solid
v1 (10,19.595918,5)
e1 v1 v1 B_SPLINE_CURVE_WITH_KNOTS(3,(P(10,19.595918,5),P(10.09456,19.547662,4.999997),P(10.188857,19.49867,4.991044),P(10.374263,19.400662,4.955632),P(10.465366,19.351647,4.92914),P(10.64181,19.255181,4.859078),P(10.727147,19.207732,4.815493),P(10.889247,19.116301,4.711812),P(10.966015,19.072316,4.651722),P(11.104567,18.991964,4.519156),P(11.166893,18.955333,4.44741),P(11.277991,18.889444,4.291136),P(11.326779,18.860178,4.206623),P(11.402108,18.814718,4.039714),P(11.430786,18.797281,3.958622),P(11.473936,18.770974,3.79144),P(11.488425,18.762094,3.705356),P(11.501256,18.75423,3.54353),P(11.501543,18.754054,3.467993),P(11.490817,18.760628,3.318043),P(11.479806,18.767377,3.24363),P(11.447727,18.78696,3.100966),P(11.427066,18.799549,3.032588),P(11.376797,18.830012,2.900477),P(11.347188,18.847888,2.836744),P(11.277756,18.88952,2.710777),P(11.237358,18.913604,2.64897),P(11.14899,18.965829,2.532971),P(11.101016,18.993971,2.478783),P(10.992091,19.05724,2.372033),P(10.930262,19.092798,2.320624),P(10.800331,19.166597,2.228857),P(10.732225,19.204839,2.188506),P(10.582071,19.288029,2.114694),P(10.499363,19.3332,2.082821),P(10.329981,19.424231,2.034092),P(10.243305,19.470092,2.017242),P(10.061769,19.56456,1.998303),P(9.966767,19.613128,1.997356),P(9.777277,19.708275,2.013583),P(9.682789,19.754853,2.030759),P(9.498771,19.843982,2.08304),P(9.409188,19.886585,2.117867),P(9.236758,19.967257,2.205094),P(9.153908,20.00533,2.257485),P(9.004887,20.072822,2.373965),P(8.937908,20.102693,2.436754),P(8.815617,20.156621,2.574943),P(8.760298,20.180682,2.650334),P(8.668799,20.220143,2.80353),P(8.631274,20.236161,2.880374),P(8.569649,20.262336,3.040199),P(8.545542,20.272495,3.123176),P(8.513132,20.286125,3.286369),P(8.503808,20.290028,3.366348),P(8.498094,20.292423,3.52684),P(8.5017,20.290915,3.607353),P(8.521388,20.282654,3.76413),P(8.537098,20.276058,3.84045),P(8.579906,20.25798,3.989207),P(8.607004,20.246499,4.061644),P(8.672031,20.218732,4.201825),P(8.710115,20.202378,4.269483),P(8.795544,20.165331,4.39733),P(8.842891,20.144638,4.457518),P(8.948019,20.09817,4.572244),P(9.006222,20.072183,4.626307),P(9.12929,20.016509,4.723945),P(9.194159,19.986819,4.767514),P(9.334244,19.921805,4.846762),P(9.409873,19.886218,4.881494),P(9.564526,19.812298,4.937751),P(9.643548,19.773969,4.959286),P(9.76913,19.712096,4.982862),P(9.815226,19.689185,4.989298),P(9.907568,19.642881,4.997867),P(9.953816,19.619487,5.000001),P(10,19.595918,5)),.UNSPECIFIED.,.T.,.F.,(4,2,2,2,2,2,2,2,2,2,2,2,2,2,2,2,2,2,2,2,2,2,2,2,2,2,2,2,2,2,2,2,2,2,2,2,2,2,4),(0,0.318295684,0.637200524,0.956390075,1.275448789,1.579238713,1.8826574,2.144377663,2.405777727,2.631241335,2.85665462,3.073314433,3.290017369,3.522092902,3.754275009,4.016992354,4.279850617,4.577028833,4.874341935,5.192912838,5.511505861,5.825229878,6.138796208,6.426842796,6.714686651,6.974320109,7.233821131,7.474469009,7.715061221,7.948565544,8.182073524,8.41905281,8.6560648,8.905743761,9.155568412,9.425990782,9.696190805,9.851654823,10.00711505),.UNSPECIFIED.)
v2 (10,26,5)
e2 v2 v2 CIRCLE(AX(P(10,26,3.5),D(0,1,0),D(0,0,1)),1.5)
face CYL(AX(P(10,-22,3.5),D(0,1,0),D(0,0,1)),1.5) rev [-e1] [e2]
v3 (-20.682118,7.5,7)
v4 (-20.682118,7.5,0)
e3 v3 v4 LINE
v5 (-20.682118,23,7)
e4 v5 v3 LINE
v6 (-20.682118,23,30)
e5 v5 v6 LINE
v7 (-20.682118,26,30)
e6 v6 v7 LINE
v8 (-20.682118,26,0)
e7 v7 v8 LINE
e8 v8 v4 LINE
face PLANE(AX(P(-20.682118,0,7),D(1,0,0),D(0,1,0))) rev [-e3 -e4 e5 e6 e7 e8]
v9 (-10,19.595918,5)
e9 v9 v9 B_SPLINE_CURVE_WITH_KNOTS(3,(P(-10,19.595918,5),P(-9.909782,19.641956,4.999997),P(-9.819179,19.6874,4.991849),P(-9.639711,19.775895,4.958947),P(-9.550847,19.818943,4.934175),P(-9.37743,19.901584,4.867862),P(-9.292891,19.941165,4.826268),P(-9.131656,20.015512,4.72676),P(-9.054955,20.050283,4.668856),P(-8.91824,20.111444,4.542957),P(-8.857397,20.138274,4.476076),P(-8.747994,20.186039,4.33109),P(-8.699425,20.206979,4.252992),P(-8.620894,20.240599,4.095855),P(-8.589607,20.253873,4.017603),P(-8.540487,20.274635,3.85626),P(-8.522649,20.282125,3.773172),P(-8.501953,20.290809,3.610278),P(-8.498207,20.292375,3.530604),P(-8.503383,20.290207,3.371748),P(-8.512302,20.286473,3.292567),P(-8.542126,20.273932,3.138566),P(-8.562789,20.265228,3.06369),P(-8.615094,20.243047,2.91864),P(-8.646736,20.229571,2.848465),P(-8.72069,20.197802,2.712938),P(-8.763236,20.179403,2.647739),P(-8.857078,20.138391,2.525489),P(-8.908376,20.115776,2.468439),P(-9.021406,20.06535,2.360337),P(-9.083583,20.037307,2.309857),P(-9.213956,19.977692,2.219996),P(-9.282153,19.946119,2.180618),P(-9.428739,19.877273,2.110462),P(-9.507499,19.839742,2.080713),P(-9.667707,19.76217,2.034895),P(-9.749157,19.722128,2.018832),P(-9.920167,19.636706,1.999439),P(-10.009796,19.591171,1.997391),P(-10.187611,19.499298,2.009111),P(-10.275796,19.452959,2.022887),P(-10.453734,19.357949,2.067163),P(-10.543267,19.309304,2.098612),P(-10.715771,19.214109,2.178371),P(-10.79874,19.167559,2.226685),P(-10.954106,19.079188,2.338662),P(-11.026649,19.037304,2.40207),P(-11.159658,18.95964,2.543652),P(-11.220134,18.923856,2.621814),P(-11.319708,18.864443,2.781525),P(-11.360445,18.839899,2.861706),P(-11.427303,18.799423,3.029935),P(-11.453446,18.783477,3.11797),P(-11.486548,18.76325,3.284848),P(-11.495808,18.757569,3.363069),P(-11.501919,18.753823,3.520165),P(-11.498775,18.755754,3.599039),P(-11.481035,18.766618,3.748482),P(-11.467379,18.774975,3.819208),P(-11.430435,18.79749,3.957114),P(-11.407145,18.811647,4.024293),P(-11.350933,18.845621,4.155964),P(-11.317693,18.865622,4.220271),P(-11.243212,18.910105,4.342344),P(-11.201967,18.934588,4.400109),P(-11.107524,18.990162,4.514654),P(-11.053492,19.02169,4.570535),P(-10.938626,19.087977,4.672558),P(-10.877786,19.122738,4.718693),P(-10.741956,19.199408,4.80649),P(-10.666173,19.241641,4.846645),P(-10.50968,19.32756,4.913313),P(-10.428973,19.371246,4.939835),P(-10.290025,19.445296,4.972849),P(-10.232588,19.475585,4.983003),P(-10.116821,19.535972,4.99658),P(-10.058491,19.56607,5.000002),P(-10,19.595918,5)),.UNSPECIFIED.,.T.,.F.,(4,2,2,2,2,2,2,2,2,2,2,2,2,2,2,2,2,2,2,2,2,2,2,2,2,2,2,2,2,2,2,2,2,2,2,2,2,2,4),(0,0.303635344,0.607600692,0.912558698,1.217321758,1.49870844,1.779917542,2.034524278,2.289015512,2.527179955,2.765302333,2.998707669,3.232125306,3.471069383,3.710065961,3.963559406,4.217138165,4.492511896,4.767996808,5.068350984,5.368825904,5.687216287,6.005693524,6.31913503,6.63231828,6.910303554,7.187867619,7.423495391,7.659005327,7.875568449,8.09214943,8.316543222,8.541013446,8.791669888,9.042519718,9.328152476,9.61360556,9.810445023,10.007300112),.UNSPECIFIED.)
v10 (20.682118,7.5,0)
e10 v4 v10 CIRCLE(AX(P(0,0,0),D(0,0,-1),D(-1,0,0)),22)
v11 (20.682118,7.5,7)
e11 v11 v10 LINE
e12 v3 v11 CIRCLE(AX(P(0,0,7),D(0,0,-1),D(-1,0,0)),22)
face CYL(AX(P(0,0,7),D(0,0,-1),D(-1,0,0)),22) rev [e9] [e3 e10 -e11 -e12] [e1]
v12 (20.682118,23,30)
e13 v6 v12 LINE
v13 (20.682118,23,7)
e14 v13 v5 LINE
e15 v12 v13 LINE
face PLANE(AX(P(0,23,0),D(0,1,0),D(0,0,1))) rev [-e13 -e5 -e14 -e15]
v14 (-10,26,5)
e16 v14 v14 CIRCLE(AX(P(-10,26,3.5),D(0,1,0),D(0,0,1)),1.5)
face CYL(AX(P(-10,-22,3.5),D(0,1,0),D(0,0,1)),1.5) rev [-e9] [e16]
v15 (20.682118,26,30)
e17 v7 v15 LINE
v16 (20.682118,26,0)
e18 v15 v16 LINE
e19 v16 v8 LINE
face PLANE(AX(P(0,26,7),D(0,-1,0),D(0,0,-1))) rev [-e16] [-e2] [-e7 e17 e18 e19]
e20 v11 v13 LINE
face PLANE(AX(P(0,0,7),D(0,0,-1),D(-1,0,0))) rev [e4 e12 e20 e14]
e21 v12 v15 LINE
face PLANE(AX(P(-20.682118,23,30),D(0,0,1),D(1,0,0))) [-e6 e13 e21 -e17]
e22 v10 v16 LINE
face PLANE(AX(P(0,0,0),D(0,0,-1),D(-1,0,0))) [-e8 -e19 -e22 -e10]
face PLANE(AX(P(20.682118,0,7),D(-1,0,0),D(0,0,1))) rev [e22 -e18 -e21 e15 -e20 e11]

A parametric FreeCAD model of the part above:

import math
import FreeCAD as App
import Part
import Sketcher
Q = App.Units.Quantity

doc = App.newDocument("Part")
params = doc.addObject("Spreadsheet::Sheet", "Params")
for row, (alias, value) in enumerate([
    ("sketch1_diameter", "44 mm"),
    ("pad1_length", "7 mm"),
    ("sketch2_height", "15 mm"),
    ("pad2_length", "23 mm"),
    ("sketch3_radius", "22 mm"),
    ("sketch3_height", "18.5 mm"),
    ("pad3_length", "7 mm"),
    ("sketch4_height", "23 mm"),
    ("pad4_length", "3 mm"),
    ("sketch5_diameter", "3 mm"),
    ("pad5_length", "61.728906 mm"),
    ("sketch6_diameter", "44 mm"),
], start=1):
    params.set(f"A{row}", alias)
    params.set(f"B{row}", "=" + value)
    params.setAlias(f"B{row}", alias)

body = doc.addObject("PartDesign::Body", "Body")

# Sketch on XY plane
sketch1 = body.newObject("Sketcher::SketchObject", "Sketch")
sketch1.AttachmentSupport = (doc.getObject("XY_Plane"), [""])
sketch1.MapMode = "FlatFace"
sketch1.addGeometry(Part.Circle(App.Vector(0, 0, 0), App.Vector(0, 0, 1), 22), False)
sketch1.addConstraint([
    Sketcher.Constraint("Coincident", 0, 3, -1, 1),
    Sketcher.Constraint("Diameter", 0, Q("44 mm")),
])
sketch1.setExpression("Constraints[1]", "Params.sketch1_diameter")
pad1 = body.newObject("PartDesign::Pad", "Pad")
pad1.Profile = sketch1
pad1.setExpression("Length", "Params.pad1_length")

# Sketch on XY plane
sketch2 = body.newObject("Sketcher::SketchObject", "Sketch001")
sketch2.AttachmentSupport = (doc.getObject("XY_Plane"), [""])
sketch2.MapMode = "FlatFace"
sketch2.AttachmentOffset = App.Placement(App.Vector(0, 0, 7), App.Rotation())
sketch2.addGeometry([
    Part.LineSegment(App.Vector(-21, 8, 0), App.Vector(-21, -8, 0)),
    Part.LineSegment(App.Vector(-21, -8, 0), App.Vector(21, -8, 0)),
    Part.LineSegment(App.Vector(21, -8, 0), App.Vector(21, 8, 0)),
    Part.LineSegment(App.Vector(21, 8, 0), App.Vector(-21, 8, 0)),
], False)
sketch2.addConstraint([
    Sketcher.Constraint("Coincident", 0, 2, 1, 1),
    Sketcher.Constraint("Coincident", 1, 2, 2, 1),
    Sketcher.Constraint("Coincident", 2, 2, 3, 1),
    Sketcher.Constraint("Coincident", 3, 2, 0, 1),
    Sketcher.Constraint("Vertical", 0),
    Sketcher.Constraint("Horizontal", 1),
    Sketcher.Constraint("Vertical", 2),
    Sketcher.Constraint("Horizontal", 3),
    Sketcher.Constraint("Symmetric", 0, 2, 2, 2, -1, 1),
    Sketcher.Constraint("DistanceY", 0, 2, 0, 1, Q("15 mm")),
    Sketcher.Constraint("DistanceX", 1, 1, 1, 2, Q("41.364236 mm")),
])
sketch2.setExpression("Constraints[9]", "Params.sketch2_height")
pad2 = body.newObject("PartDesign::Pad", "Pad001")
pad2.Profile = sketch2
pad2.setExpression("Length", "Params.pad2_length")
body2 = doc.addObject("PartDesign::Body", "Body001")

# Sketch on XY plane
sketch3 = body2.newObject("Sketcher::SketchObject", "Sketch002")
sketch3.AttachmentSupport = (doc.getObject("XY_Plane001"), [""])
sketch3.MapMode = "FlatFace"
sketch3.addGeometry([
    Part.LineSegment(App.Vector(21, 26, 0), App.Vector(21, 8, 0)),
    Part.ArcOfCircle(Part.Circle(App.Vector(0, 0, 0), App.Vector(0, 0, 1), 22), math.radians(20), math.radians(160)),
    Part.LineSegment(App.Vector(-21, 8, 0), App.Vector(-21, 26, 0)),
    Part.LineSegment(App.Vector(-21, 26, 0), App.Vector(21, 26, 0)),
], False)
sketch3.addConstraint([
    Sketcher.Constraint("Coincident", 0, 2, 1, 1),
    Sketcher.Constraint("Coincident", 1, 2, 2, 1),
    Sketcher.Constraint("Coincident", 2, 2, 3, 1),
    Sketcher.Constraint("Coincident", 3, 2, 0, 1),
    Sketcher.Constraint("Vertical", 0),
    Sketcher.Constraint("Vertical", 2),
    Sketcher.Constraint("Horizontal", 3),
    Sketcher.Constraint("Coincident", 1, 3, -1, 1),
    Sketcher.Constraint("Horizontal", 0, 2, 1, 2),
    Sketcher.Constraint("Radius", 1, Q("22 mm")),
    Sketcher.Constraint("DistanceY", 0, 2, 0, 1, Q("18.5 mm")),
    Sketcher.Constraint("DistanceY", -1, 1, 2, 2, Q("26 mm")),
])
sketch3.setExpression("Constraints[9]", "Params.sketch3_radius")
sketch3.setExpression("Constraints[10]", "Params.sketch3_height")
pad3 = body2.newObject("PartDesign::Pad", "Pad002")
pad3.Profile = sketch3
pad3.setExpression("Length", "Params.pad3_length")

# Sketch on XZ plane
sketch4 = body2.newObject("Sketcher::SketchObject", "Sketch003")
sketch4.AttachmentSupport = (doc.getObject("XZ_Plane001"), [""])
sketch4.MapMode = "FlatFace"
sketch4.AttachmentOffset = App.Placement(App.Vector(0, 0, -26), App.Rotation())
sketch4.addGeometry([
    Part.LineSegment(App.Vector(-21, 7, 0), App.Vector(-21, 30, 0)),
    Part.LineSegment(App.Vector(-21, 30, 0), App.Vector(21, 30, 0)),
    Part.LineSegment(App.Vector(21, 30, 0), App.Vector(21, 7, 0)),
    Part.LineSegment(App.Vector(21, 7, 0), App.Vector(-21, 7, 0)),
], False)
sketch4.addConstraint([
    Sketcher.Constraint("Coincident", 0, 2, 1, 1),
    Sketcher.Constraint("Coincident", 1, 2, 2, 1),
    Sketcher.Constraint("Coincident", 2, 2, 3, 1),
    Sketcher.Constraint("Coincident", 3, 2, 0, 1),
    Sketcher.Constraint("Vertical", 0),
    Sketcher.Constraint("Horizontal", 1),
    Sketcher.Constraint("Vertical", 2),
    Sketcher.Constraint("Horizontal", 3),
    Sketcher.Constraint("DistanceY", 0, 1, 0, 2, Q("23 mm")),
    Sketcher.Constraint("DistanceY", -1, 1, 0, 2, Q("30 mm")),
    Sketcher.Constraint("DistanceX", 1, 1, 1, 2, Q("41.364236 mm")),
    Sketcher.Constraint("DistanceX", 0, 2, -1, 1, Q("20.682118 mm")),
])
sketch4.setExpression("Constraints[8]", "Params.sketch4_height")
pad4 = body2.newObject("PartDesign::Pad", "Pad003")
pad4.Profile = sketch4
pad4.setExpression("Length", "Params.pad4_length")
body3 = doc.addObject("PartDesign::Body", "Body002")
body3.AllowCompound = True

# Sketch on XZ plane
sketch5 = body3.newObject("Sketcher::SketchObject", "Sketch004")
sketch5.AttachmentSupport = (doc.getObject("XZ_Plane002"), [""])
sketch5.MapMode = "FlatFace"
sketch5.AttachmentOffset = App.Placement(App.Vector(0, 0, -26), App.Rotation())
sketch5.addGeometry([
    Part.Circle(App.Vector(-10, 3.5, 0), App.Vector(0, 0, 1), 1.5),
    Part.Circle(App.Vector(10, 3.5, 0), App.Vector(0, 0, 1), 1.5),
], False)
sketch5.addConstraint([
    Sketcher.Constraint("Equal", 0, 1),
    Sketcher.Constraint("Symmetric", 0, 3, 1, 3, -2),
    Sketcher.Constraint("Diameter", 0, Q("3 mm")),
    Sketcher.Constraint("DistanceX", 0, 3, -1, 1, Q("10 mm")),
    Sketcher.Constraint("DistanceY", -1, 1, 0, 3, Q("3.5 mm")),
])
sketch5.setExpression("Constraints[2]", "Params.sketch5_diameter")
pad5 = body3.newObject("PartDesign::Pad", "Pad004")
pad5.Profile = sketch5
pad5.setExpression("Length", "Params.pad5_length")
doc.recompute()

body4 = doc.addObject("PartDesign::Body", "Body003")
body4.BaseFeature = body3
boolean = body.newObject("PartDesign::Boolean", "Boolean")
boolean.Type = "Cut"
boolean.addObjects([body4])
doc.recompute()

# Sketch on XY plane
sketch6 = body.newObject("Sketcher::SketchObject", "Sketch005")
sketch6.AttachmentSupport = (doc.getObject("XY_Plane"), [""])
sketch6.MapMode = "FlatFace"
sketch6.addGeometry(Part.Circle(App.Vector(0, 0, 0), App.Vector(0, 0, 1), 22), False)
sketch6.addConstraint([
    Sketcher.Constraint("Coincident", 0, 3, -1, 1),
    Sketcher.Constraint("Diameter", 0, Q("44 mm")),
])
sketch6.setExpression("Constraints[1]", "Params.sketch6_diameter")
pocket1 = body.newObject("PartDesign::Pocket", "Pocket")
pocket1.Profile = sketch6
pocket1.Type = "ThroughAll"
pocket1.Reversed = True
doc.recompute()

boolean2 = body2.newObject("PartDesign::Boolean", "Boolean001")
boolean2.Type = "Cut"
boolean2.addObjects([body3])

doc.recompute()
